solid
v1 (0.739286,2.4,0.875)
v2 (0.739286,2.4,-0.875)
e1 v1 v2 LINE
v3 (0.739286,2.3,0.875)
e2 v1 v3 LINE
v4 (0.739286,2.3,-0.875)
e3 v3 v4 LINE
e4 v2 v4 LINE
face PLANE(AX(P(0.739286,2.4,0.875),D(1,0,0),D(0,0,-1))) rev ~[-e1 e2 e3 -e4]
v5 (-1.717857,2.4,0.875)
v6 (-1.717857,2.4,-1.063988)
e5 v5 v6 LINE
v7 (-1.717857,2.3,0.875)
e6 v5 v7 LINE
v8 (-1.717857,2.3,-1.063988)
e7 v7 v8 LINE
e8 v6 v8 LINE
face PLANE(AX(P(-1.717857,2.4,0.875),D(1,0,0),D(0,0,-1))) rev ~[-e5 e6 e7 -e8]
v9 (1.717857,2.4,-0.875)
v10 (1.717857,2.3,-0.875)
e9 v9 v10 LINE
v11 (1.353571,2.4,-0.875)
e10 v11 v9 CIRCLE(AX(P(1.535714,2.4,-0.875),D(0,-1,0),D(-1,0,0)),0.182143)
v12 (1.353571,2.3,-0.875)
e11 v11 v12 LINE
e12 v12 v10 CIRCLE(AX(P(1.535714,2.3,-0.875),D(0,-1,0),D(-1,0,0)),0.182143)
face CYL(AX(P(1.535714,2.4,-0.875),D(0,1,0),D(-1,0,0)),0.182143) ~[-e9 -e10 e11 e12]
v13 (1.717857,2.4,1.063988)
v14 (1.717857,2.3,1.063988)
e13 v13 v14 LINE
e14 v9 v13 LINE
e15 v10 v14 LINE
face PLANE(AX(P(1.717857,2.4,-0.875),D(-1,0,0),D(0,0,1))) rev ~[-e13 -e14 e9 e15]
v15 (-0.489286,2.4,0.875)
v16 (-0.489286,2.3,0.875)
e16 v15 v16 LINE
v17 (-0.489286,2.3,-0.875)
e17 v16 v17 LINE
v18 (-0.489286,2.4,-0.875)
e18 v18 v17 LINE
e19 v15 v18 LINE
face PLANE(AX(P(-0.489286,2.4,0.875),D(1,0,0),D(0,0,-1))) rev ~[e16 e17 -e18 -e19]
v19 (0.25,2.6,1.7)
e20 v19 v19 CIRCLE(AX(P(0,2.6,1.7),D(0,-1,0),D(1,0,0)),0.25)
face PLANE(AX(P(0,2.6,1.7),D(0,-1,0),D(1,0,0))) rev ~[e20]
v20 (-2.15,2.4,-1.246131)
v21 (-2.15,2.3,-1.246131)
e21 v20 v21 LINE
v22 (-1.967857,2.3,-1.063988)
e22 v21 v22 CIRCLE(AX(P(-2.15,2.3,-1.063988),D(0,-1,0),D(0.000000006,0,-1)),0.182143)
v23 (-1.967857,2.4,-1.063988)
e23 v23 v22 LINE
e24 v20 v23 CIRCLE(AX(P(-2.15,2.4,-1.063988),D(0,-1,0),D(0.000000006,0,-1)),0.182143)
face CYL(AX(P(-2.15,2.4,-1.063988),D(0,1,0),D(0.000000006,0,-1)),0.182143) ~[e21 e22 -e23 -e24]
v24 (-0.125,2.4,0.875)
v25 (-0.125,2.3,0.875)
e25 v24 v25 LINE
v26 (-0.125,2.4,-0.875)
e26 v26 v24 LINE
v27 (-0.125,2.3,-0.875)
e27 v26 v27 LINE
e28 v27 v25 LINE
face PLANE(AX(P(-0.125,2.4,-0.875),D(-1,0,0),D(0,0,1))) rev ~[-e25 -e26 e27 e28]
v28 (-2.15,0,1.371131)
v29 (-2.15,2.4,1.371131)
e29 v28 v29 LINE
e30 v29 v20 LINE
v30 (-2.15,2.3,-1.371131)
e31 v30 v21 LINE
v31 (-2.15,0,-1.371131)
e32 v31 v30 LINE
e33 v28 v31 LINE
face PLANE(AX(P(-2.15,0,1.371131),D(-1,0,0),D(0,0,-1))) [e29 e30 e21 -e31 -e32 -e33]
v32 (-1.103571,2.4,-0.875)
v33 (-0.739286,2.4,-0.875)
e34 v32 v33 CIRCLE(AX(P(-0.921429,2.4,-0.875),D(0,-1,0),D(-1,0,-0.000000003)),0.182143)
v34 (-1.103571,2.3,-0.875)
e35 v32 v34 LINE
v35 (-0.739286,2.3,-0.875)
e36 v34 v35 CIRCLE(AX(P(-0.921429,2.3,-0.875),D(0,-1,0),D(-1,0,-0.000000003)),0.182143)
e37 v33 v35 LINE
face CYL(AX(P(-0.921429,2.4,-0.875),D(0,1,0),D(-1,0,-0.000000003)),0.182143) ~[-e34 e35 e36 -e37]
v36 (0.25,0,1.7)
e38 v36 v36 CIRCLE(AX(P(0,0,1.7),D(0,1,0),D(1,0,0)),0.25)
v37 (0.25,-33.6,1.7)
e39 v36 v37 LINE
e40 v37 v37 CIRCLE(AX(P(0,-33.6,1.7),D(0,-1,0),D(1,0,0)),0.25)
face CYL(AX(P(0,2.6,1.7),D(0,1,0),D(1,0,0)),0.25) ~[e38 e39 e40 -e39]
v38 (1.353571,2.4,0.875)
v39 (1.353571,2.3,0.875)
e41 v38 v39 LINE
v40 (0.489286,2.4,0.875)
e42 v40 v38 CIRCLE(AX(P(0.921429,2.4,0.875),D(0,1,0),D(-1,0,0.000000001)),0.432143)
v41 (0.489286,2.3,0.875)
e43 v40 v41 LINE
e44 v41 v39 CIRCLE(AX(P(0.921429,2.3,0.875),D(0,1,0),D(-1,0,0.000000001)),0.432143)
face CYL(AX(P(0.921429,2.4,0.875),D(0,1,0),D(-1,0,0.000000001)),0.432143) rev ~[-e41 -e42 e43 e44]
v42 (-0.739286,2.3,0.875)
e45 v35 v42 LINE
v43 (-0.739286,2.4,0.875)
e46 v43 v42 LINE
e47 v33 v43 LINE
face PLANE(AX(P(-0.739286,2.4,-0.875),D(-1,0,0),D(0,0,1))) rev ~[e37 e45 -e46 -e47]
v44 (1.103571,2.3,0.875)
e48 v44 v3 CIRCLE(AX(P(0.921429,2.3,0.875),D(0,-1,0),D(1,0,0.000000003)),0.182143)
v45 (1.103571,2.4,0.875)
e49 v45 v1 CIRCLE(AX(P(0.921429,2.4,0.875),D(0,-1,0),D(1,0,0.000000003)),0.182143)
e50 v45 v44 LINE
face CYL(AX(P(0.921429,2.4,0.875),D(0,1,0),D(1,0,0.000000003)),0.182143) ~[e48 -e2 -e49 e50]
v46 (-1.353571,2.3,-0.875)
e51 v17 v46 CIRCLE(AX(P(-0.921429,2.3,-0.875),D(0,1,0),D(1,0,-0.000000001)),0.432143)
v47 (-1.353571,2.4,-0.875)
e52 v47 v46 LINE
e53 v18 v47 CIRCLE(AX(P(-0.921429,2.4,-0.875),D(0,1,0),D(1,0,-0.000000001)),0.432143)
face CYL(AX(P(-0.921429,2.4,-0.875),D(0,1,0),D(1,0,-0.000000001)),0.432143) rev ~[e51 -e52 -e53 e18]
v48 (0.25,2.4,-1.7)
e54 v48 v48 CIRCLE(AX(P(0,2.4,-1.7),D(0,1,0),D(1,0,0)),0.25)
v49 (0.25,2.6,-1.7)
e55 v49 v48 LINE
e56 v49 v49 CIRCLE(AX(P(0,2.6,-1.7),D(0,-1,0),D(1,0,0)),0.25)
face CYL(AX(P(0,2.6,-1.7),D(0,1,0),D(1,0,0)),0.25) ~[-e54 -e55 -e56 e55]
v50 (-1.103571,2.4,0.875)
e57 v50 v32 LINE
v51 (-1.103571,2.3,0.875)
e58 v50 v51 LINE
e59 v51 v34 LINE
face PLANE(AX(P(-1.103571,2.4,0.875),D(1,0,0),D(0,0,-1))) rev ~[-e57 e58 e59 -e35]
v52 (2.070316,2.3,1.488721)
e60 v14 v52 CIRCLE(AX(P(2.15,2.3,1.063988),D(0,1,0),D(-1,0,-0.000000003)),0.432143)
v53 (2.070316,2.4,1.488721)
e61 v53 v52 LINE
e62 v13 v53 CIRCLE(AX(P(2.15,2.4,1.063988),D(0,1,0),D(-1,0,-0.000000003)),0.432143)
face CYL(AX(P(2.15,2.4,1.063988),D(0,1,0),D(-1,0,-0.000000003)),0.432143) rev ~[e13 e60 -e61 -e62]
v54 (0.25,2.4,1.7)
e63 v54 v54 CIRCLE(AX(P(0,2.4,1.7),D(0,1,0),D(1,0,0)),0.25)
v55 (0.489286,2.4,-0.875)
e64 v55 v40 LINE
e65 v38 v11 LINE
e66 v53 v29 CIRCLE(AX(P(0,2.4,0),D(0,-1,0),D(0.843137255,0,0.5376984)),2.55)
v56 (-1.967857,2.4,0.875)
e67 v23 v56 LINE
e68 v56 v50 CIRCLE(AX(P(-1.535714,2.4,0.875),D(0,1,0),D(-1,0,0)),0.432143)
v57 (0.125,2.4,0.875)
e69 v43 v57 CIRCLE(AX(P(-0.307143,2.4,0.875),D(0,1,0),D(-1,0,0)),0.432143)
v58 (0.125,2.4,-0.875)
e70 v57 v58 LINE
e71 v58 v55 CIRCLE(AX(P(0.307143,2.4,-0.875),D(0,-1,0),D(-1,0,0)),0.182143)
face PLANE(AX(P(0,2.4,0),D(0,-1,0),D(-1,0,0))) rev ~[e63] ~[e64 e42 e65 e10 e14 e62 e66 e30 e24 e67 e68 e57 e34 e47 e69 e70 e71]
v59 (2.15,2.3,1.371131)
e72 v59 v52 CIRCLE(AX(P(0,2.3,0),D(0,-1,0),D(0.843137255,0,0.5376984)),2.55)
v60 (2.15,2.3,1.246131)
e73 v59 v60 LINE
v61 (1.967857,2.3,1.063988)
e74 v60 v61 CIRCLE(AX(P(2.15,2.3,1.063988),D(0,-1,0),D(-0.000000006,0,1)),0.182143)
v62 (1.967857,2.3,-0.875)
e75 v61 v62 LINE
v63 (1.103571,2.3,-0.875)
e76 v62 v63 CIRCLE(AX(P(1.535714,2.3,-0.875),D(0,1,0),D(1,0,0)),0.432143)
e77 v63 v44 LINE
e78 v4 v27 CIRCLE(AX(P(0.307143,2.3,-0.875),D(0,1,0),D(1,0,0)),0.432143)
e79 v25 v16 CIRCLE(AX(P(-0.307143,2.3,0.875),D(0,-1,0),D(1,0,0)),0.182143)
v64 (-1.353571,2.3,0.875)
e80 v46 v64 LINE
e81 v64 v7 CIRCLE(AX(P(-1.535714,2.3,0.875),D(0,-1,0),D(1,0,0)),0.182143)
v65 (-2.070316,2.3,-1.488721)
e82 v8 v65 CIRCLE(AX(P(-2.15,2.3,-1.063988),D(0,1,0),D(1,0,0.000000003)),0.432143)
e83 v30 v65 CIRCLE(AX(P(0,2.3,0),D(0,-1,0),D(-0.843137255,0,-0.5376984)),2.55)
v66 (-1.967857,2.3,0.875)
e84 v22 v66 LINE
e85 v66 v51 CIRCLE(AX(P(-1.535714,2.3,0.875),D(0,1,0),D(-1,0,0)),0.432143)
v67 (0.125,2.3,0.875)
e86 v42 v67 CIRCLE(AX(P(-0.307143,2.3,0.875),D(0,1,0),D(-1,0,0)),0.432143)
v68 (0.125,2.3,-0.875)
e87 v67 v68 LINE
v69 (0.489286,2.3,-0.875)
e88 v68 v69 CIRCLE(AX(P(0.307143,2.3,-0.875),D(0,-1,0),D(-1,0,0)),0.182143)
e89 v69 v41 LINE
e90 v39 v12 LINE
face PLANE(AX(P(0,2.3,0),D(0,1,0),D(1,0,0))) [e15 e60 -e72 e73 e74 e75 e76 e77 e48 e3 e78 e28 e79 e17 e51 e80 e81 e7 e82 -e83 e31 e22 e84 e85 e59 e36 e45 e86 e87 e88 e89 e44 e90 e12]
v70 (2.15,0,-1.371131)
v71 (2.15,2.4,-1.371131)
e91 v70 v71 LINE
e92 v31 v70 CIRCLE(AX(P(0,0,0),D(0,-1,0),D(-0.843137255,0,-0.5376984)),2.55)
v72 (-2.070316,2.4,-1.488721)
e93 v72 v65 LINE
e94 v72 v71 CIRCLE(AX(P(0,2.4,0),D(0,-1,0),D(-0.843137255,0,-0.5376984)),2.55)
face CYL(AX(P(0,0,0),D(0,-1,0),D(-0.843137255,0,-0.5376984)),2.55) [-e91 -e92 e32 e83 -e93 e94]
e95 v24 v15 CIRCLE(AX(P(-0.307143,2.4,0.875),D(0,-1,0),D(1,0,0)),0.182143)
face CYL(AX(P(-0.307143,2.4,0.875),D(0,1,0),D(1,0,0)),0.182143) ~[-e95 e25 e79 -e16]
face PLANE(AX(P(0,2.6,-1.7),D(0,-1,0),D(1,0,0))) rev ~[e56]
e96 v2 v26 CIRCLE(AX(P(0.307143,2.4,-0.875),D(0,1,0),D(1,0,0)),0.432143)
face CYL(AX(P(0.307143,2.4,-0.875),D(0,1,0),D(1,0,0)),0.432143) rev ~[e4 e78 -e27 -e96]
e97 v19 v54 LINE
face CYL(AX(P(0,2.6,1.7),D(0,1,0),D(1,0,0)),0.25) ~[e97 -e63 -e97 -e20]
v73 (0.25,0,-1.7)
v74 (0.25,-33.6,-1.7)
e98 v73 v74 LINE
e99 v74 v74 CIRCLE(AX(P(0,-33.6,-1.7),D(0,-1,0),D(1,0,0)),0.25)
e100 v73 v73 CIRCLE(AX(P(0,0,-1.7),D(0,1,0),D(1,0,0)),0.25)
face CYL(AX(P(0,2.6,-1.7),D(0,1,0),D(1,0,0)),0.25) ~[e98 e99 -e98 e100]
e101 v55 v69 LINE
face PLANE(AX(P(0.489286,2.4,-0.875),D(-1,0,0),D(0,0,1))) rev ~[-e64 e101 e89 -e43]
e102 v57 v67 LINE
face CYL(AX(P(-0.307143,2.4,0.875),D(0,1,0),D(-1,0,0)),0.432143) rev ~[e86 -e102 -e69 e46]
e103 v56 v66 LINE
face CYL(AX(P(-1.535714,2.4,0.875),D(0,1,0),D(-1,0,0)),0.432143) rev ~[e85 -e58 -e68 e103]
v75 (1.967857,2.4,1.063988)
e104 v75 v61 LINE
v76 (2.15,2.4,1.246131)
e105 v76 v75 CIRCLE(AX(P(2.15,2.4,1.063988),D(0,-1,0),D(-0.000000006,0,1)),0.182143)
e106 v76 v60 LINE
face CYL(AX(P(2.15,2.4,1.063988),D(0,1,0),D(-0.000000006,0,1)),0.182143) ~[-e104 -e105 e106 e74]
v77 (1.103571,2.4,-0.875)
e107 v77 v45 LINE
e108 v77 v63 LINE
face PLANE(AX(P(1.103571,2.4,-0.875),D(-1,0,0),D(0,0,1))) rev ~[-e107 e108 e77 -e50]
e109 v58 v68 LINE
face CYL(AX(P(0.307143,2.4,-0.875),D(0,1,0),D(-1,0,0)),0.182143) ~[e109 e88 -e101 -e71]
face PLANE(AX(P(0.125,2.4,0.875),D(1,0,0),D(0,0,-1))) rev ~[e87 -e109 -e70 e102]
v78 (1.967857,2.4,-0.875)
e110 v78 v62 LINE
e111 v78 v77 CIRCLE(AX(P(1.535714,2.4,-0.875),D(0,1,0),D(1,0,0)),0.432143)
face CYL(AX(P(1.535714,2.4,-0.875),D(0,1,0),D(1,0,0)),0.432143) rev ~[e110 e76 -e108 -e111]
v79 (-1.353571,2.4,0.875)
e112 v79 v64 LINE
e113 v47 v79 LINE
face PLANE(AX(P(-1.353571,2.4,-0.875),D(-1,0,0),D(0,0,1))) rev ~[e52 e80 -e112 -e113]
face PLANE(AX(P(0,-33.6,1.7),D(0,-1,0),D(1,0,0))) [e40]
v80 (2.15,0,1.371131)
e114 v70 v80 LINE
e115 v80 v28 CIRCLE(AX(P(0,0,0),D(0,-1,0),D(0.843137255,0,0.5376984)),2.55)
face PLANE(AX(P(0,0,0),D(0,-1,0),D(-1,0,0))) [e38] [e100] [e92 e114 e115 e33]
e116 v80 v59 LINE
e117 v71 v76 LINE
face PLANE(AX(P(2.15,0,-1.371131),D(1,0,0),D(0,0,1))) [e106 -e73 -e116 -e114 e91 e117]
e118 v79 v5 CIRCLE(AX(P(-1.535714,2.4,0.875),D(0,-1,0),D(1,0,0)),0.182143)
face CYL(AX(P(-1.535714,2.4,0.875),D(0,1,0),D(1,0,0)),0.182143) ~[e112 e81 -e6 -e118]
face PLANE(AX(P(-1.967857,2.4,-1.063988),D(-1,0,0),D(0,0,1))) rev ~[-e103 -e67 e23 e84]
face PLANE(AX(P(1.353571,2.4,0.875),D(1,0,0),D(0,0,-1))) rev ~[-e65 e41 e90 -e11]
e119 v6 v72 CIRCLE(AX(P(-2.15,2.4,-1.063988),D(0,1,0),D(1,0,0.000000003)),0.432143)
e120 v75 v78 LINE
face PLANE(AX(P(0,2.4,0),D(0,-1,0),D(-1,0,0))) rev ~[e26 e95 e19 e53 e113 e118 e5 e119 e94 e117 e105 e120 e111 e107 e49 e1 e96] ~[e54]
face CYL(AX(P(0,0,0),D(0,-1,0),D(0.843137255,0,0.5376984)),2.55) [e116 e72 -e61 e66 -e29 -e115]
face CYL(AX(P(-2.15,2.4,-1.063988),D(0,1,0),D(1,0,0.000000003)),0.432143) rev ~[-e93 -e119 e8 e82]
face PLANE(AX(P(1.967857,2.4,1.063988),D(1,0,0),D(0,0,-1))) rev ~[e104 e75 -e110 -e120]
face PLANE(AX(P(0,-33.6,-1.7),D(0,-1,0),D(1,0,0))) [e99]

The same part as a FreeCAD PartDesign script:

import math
import FreeCAD as App
import Part
import Sketcher

V = App.Vector

doc = App.newDocument("Part")
body = doc.addObject("PartDesign::Body", "Body")

# Sketch on XZ plane
sketch1 = body.newObject("Sketcher::SketchObject", "Sketch")
sketch1.AttachmentSupport = (doc.getObject("XZ_Plane"), [""])
sketch1.MapMode = "FlatFace"
sketch1.addGeometry(Part.LineSegment(V(2.15, 1.371131, 0), V(2.15, -1.371131, 0)), False)
sketch1.addGeometry(Part.ArcOfCircle(Part.Circle(V(0, 0, 0), V(0, 0, 1), 2.55), math.radians(-147.472904), math.radians(-32.527096)), False)
sketch1.addGeometry(Part.LineSegment(V(-2.15, -1.371131, 0), V(-2.15, 1.371131, 0)), False)
sketch1.addGeometry(Part.ArcOfCircle(Part.Circle(V(0, 0, 0), V(0, 0, 1), 2.55), math.radians(32.527096), math.radians(147.472904)), False)
sketch1.addConstraint(Sketcher.Constraint("Coincident", 0, 2, 1, 2))
sketch1.addConstraint(Sketcher.Constraint("Coincident", 1, 1, 2, 1))
sketch1.addConstraint(Sketcher.Constraint("Coincident", 2, 2, 3, 2))
sketch1.addConstraint(Sketcher.Constraint("Coincident", 3, 1, 0, 1))
sketch1.addConstraint(Sketcher.Constraint("Vertical", 0))
sketch1.addConstraint(Sketcher.Constraint("Vertical", 2))
sketch1.addConstraint(Sketcher.Constraint("Coincident", 1, 3, -1, 1))
sketch1.addConstraint(Sketcher.Constraint("Coincident", 3, 3, -1, 1))
sketch1.addConstraint(Sketcher.Constraint("Equal", 1, 3))
sketch1.addConstraint(Sketcher.Constraint("Horizontal", 0, 2, 1, 1))
sketch1.addConstraint(Sketcher.Constraint("Radius", 1, 2.55))
sketch1.addConstraint(Sketcher.Constraint("DistanceX", 1, 1, 0, 2, 4.3))
pad1 = body.newObject("PartDesign::Pad", "Pad")
pad1.Profile = sketch1
pad1.Length = 2.4
pad1.Reversed = True

# Sketch on XZ plane
sketch2 = body.newObject("Sketcher::SketchObject", "Sketch001")
sketch2.AttachmentSupport = (doc.getObject("XZ_Plane"), [""])
sketch2.MapMode = "FlatFace"
sketch2.AttachmentOffset = App.Placement(V(0, 0, -2.6), App.Rotation())
sketch2.addGeometry(Part.Circle(V(0, 1.7, 0), V(0, 0, 1), 0.25), False)
sketch2.addGeometry(Part.Circle(V(0, -1.7, 0), V(0, 0, 1), 0.25), False)
sketch2.addConstraint(Sketcher.Constraint("Equal", 0, 1))
sketch2.addConstraint(Sketcher.Constraint("Symmetric", 0, 3, 1, 3, -1, 1))
sketch2.addConstraint(Sketcher.Constraint("PointOnObject", 0, 3, -2))
sketch2.addConstraint(Sketcher.Constraint("Diameter", 0, 0.5))
sketch2.addConstraint(Sketcher.Constraint("DistanceY", -1, 1, 0, 3, 1.7))
pad2 = body.newObject("PartDesign::Pad", "Pad001")
pad2.Profile = sketch2
pad2.Length = 36.2

# Sketch on XZ plane
sketch3 = body.newObject("Sketcher::SketchObject", "Sketch002")
sketch3.AttachmentSupport = (doc.getObject("XZ_Plane"), [""])
sketch3.MapMode = "FlatFace"
sketch3.AttachmentOffset = App.Placement(V(0, 0, -2.4), App.Rotation())
sketch3.addGeometry(Part.ArcOfCircle(Part.Circle(V(-2.15, -1.063988, 0), V(0, 0, 1), 0.182143), math.radians(-90), math.radians(0)), False)
sketch3.addGeometry(Part.LineSegment(V(-1.967857, -1.063988, 0), V(-1.967857, 0.875, 0)), False)
sketch3.addGeometry(Part.ArcOfCircle(Part.Circle(V(-1.535714, 0.875, 0), V(0, 0, 1), 0.432143), math.radians(0), math.radians(180)), False)
sketch3.addGeometry(Part.LineSegment(V(-1.103571, 0.875, 0), V(-1.103571, -0.875, 0)), False)
sketch3.addGeometry(Part.ArcOfCircle(Part.Circle(V(-0.921429, -0.875, 0), V(0, 0, 1), 0.182143), math.radians(180), math.radians(360)), False)
sketch3.addGeometry(Part.LineSegment(V(-0.739286, -0.875, 0), V(-0.739286, 0.875, 0)), False)
sketch3.addGeometry(Part.ArcOfCircle(Part.Circle(V(-0.307143, 0.875, 0), V(0, 0, 1), 0.432143), math.radians(0), math.radians(180)), False)
sketch3.addGeometry(Part.LineSegment(V(0.125, 0.875, 0), V(0.125, -0.875, 0)), False)
sketch3.addGeometry(Part.ArcOfCircle(Part.Circle(V(0.307143, -0.875, 0), V(0, 0, 1), 0.182143), math.radians(180), math.radians(360)), False)
sketch3.addGeometry(Part.LineSegment(V(0.489286, -0.875, 0), V(0.489286, 0.875, 0)), False)
sketch3.addGeometry(Part.ArcOfCircle(Part.Circle(V(0.921429, 0.875, 0), V(0, 0, 1), 0.432143), math.radians(0), math.radians(180)), False)
sketch3.addGeometry(Part.LineSegment(V(1.353571, 0.875, 0), V(1.353571, -0.875, 0)), False)
sketch3.addGeometry(Part.ArcOfCircle(Part.Circle(V(1.535714, -0.875, 0), V(0, 0, 1), 0.182143), math.radians(180), math.radians(360)), False)
sketch3.addGeometry(Part.LineSegment(V(1.717857, -0.875, 0), V(1.717857, 1.063988, 0)), False)
sketch3.addGeometry(Part.ArcOfCircle(Part.Circle(V(2.15, 1.063988, 0), V(0, 0, 1), 0.432143), math.radians(90), math.radians(180)), False)
sketch3.addGeometry(Part.LineSegment(V(2.15, 1.496131, 0), V(2.15, 1.246131, 0)), False)
sketch3.addGeometry(Part.ArcOfCircle(Part.Circle(V(2.15, 1.063988, 0), V(0, 0, 1), 0.182143), math.radians(90), math.radians(180)), False)
sketch3.addGeometry(Part.LineSegment(V(1.967857, 1.063988, 0), V(1.967857, -0.875, 0)), False)
sketch3.addGeometry(Part.ArcOfCircle(Part.Circle(V(1.535714, -0.875, 0), V(0, 0, 1), 0.432143), math.radians(180), math.radians(360)), False)
sketch3.addGeometry(Part.LineSegment(V(1.103571, -0.875, 0), V(1.103571, 0.875, 0)), False)
sketch3.addGeometry(Part.ArcOfCircle(Part.Circle(V(0.921429, 0.875, 0), V(0, 0, 1), 0.182143), math.radians(0), math.radians(180)), False)
sketch3.addGeometry(Part.LineSegment(V(0.739286, 0.875, 0), V(0.739286, -0.875, 0)), False)
sketch3.addGeometry(Part.ArcOfCircle(Part.Circle(V(0.307143, -0.875, 0), V(0, 0, 1), 0.432143), math.radians(180), math.radians(360)), False)
sketch3.addGeometry(Part.LineSegment(V(-0.125, -0.875, 0), V(-0.125, 0.875, 0)), False)
sketch3.addGeometry(Part.ArcOfCircle(Part.Circle(V(-0.307143, 0.875, 0), V(0, 0, 1), 0.182143), math.radians(0), math.radians(180)), False)
sketch3.addGeometry(Part.LineSegment(V(-0.489286, 0.875, 0), V(-0.489286, -0.875, 0)), False)
sketch3.addGeometry(Part.ArcOfCircle(Part.Circle(V(-0.921429, -0.875, 0), V(0, 0, 1), 0.432143), math.radians(180), math.radians(360)), False)
sketch3.addGeometry(Part.LineSegment(V(-1.353571, -0.875, 0), V(-1.353571, 0.875, 0)), False)
sketch3.addGeometry(Part.ArcOfCircle(Part.Circle(V(-1.535714, 0.875, 0), V(0, 0, 1), 0.182143), math.radians(0), math.radians(180)), False)
sketch3.addGeometry(Part.LineSegment(V(-1.717857, 0.875, 0), V(-1.717857, -1.063988, 0)), False)
sketch3.addGeometry(Part.ArcOfCircle(Part.Circle(V(-2.15, -1.063988, 0), V(0, 0, 1), 0.432143), math.radians(-90), math.radians(0)), False)
sketch3.addGeometry(Part.LineSegment(V(-2.15, -1.496131, 0), V(-2.15, -1.246131, 0)), False)
sketch3.addConstraint(Sketcher.Constraint("Tangent", 0, 2, 1, 1))
sketch3.addConstraint(Sketcher.Constraint("Tangent", 1, 2, 2, 2))
sketch3.addConstraint(Sketcher.Constraint("Tangent", 2, 1, 3, 1))
sketch3.addConstraint(Sketcher.Constraint("Tangent", 3, 2, 4, 1))
sketch3.addConstraint(Sketcher.Constraint("Tangent", 4, 2, 5, 1))
sketch3.addConstraint(Sketcher.Constraint("Tangent", 5, 2, 6, 2))
sketch3.addConstraint(Sketcher.Constraint("Tangent", 6, 1, 7, 1))
sketch3.addConstraint(Sketcher.Constraint("Tangent", 7, 2, 8, 1))
sketch3.addConstraint(Sketcher.Constraint("Tangent", 8, 2, 9, 1))
sketch3.addConstraint(Sketcher.Constraint("Tangent", 9, 2, 10, 2))
sketch3.addConstraint(Sketcher.Constraint("Tangent", 10, 1, 11, 1))
sketch3.addConstraint(Sketcher.Constraint("Tangent", 11, 2, 12, 1))
sketch3.addConstraint(Sketcher.Constraint("Tangent", 12, 2, 13, 1))
sketch3.addConstraint(Sketcher.Constraint("Tangent", 13, 2, 14, 2))
sketch3.addConstraint(Sketcher.Constraint("Coincident", 14, 1, 15, 1))
sketch3.addConstraint(Sketcher.Constraint("Coincident", 15, 2, 16, 1))
sketch3.addConstraint(Sketcher.Constraint("Tangent", 16, 2, 17, 1))
sketch3.addConstraint(Sketcher.Constraint("Tangent", 17, 2, 18, 2))
sketch3.addConstraint(Sketcher.Constraint("Tangent", 18, 1, 19, 1))
sketch3.addConstraint(Sketcher.Constraint("Tangent", 19, 2, 20, 1))
sketch3.addConstraint(Sketcher.Constraint("Tangent", 20, 2, 21, 1))
sketch3.addConstraint(Sketcher.Constraint("Tangent", 21, 2, 22, 2))
sketch3.addConstraint(Sketcher.Constraint("Tangent", 22, 1, 23, 1))
sketch3.addConstraint(Sketcher.Constraint("Tangent", 23, 2, 24, 1))
sketch3.addConstraint(Sketcher.Constraint("Tangent", 24, 2, 25, 1))
sketch3.addConstraint(Sketcher.Constraint("Tangent", 25, 2, 26, 2))
sketch3.addConstraint(Sketcher.Constraint("Tangent", 26, 1, 27, 1))
sketch3.addConstraint(Sketcher.Constraint("Tangent", 27, 2, 28, 1))
sketch3.addConstraint(Sketcher.Constraint("Tangent", 28, 2, 29, 1))
sketch3.addConstraint(Sketcher.Constraint("Tangent", 29, 2, 30, 2))
sketch3.addConstraint(Sketcher.Constraint("Coincident", 30, 1, 31, 1))
sketch3.addConstraint(Sketcher.Constraint("Coincident", 31, 2, 0, 1))
sketch3.addConstraint(Sketcher.Constraint("Vertical", 1))
sketch3.addConstraint(Sketcher.Constraint("Vertical", 3))
sketch3.addConstraint(Sketcher.Constraint("Vertical", 5))
sketch3.addConstraint(Sketcher.Constraint("Vertical", 7))
sketch3.addConstraint(Sketcher.Constraint("Vertical", 9))
sketch3.addConstraint(Sketcher.Constraint("Vertical", 11))
sketch3.addConstraint(Sketcher.Constraint("Vertical", 13))
sketch3.addConstraint(Sketcher.Constraint("Vertical", 15))
sketch3.addConstraint(Sketcher.Constraint("Vertical", 17))
sketch3.addConstraint(Sketcher.Constraint("Vertical", 19))
sketch3.addConstraint(Sketcher.Constraint("Vertical", 21))
sketch3.addConstraint(Sketcher.Constraint("Vertical", 23))
sketch3.addConstraint(Sketcher.Constraint("Vertical", 25))
sketch3.addConstraint(Sketcher.Constraint("Vertical", 27))
sketch3.addConstraint(Sketcher.Constraint("Vertical", 29))
sketch3.addConstraint(Sketcher.Constraint("Vertical", 31))
sketch3.addConstraint(Sketcher.Constraint("Coincident", 16, 3, 14, 3))
sketch3.addConstraint(Sketcher.Constraint("Coincident", 18, 3, 12, 3))
sketch3.addConstraint(Sketcher.Constraint("Coincident", 20, 3, 10, 3))
sketch3.addConstraint(Sketcher.Constraint("Coincident", 22, 3, 8, 3))
sketch3.addConstraint(Sketcher.Constraint("Coincident", 24, 3, 6, 3))
sketch3.addConstraint(Sketcher.Constraint("Coincident", 26, 3, 4, 3))
sketch3.addConstraint(Sketcher.Constraint("Coincident", 28, 3, 2, 3))
sketch3.addConstraint(Sketcher.Constraint("Coincident", 30, 3, 0, 3))
sketch3.addConstraint(Sketcher.Constraint("Equal", 0, 4))
sketch3.addConstraint(Sketcher.Constraint("Equal", 2, 6))
sketch3.addConstraint(Sketcher.Constraint("Equal", 4, 8))
sketch3.addConstraint(Sketcher.Constraint("Equal", 6, 10))
sketch3.addConstraint(Sketcher.Constraint("Equal", 8, 12))
sketch3.addConstraint(Sketcher.Constraint("Equal", 10, 14))
sketch3.addConstraint(Sketcher.Constraint("Equal", 12, 16))
sketch3.addConstraint(Sketcher.Constraint("Symmetric", 6, 3, 8, 3, -1, 1))
sketch3.addConstraint(Sketcher.Constraint("Symmetric", 14, 1, 30, 1, -1, 1))
sketch3.addConstraint(Sketcher.Constraint("Horizontal", 2, 3, 6, 3))
sketch3.addConstraint(Sketcher.Constraint("Horizontal", 4, 3, 8, 3))
sketch3.addConstraint(Sketcher.Constraint("Horizontal", 6, 3, 10, 3))
sketch3.addConstraint(Sketcher.Constraint("Horizontal", 8, 3, 12, 3))
sketch3.addConstraint(Sketcher.Constraint("Vertical", 16, 3, 14, 1))
sketch3.addConstraint(Sketcher.Constraint("DistanceY", 3, 2, 3, 1, 1.75))
sketch3.addConstraint(Sketcher.Constraint("DistanceY", 15, 2, 15, 1, 0.25))
sketch3.addConstraint(Sketcher.Constraint("DistanceX", 0, 3, -1, 1, 2.15))
sketch3.addConstraint(Sketcher.Constraint("DistanceY", 1, 1, 1, 2, 1.938988))
pocket1 = body.newObject("PartDesign::Pocket", "Pocket")
pocket1.Profile = sketch3
pocket1.Length = 0.1
pocket1.Reversed = True

doc.recompute()
